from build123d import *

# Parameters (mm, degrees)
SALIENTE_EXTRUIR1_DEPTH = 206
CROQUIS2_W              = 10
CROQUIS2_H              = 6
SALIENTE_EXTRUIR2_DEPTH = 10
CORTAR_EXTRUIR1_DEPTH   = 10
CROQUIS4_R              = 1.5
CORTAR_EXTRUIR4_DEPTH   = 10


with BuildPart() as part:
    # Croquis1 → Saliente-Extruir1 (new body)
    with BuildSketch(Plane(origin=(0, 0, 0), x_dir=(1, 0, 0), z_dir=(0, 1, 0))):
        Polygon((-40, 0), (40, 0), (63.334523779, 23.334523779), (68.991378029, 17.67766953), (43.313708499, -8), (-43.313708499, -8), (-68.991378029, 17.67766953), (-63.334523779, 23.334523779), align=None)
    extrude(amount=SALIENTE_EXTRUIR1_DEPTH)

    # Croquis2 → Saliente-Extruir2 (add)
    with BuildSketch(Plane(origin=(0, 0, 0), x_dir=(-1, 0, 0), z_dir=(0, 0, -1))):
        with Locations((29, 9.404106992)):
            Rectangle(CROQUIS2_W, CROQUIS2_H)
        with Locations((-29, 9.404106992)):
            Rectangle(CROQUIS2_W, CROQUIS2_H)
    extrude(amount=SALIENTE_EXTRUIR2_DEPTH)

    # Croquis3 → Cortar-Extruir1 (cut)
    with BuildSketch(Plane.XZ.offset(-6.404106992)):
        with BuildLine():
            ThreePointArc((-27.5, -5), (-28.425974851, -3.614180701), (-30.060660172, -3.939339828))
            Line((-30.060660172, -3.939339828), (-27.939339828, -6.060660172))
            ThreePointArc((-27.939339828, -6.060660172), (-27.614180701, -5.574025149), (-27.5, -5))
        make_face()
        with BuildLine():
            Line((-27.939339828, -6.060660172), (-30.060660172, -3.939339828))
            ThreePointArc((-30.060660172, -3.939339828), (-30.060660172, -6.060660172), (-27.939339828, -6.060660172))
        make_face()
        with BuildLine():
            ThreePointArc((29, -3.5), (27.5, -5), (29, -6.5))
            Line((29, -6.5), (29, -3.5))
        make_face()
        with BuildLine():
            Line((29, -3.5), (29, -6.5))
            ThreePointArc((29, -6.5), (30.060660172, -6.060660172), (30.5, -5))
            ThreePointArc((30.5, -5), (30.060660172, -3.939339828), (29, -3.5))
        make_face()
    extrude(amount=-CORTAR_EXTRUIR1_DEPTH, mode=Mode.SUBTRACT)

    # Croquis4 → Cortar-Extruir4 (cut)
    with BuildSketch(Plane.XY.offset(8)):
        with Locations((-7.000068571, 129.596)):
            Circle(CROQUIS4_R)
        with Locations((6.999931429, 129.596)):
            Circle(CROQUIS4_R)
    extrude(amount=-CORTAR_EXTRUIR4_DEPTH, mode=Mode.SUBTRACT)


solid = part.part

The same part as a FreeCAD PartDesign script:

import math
import FreeCAD as App
import Part
import Sketcher

V = App.Vector
Q = App.Units.Quantity


def add_polygon(sketch, points):
    """Adds a closed chain of lines whose ends are joined by coincident constraints."""
    first, n = sketch.GeometryCount, len(points)
    for a, b in zip(points, points[1:] + points[:1]):
        sketch.addGeometry(Part.LineSegment(App.Vector(*a, 0), App.Vector(*b, 0)), False)
    for i in range(n):
        sketch.addConstraint(Sketcher.Constraint("Coincident", first + i, 2, first + (i + 1) % n, 1))

doc = App.newDocument("Part")
body = doc.addObject("PartDesign::Body", "Body")

sketch1 = body.newObject("Sketcher::SketchObject", "Sketch")
sketch1.AttachmentSupport = (doc.getObject("XZ_Plane"), [""])
sketch1.MapMode = "FlatFace"
add_polygon(sketch1, [(40, 0), (-40, 0), (-63, -23), (-69, -18), (-43, 8), (43, 8), (69, -18), (63, -23)])
sketch1.addConstraint(Sketcher.Constraint("Horizontal", 0))
sketch1.addConstraint(Sketcher.Constraint("Horizontal", 4))
sketch1.addConstraint(Sketcher.Constraint("Symmetric", 0, 2, 7, 2, -1, 1))
sketch1.addConstraint(Sketcher.Constraint("Symmetric", 2, 2, 5, 2, -2))
sketch1.addConstraint(Sketcher.Constraint("Symmetric", 1, 2, 6, 2, -2))
sketch1.addConstraint(Sketcher.Constraint("Perpendicular", 1, 2))
sketch1.addConstraint(Sketcher.Constraint("Perpendicular", 2, 3))
sketch1.addConstraint(Sketcher.Constraint("Perpendicular", 3, 5))
sketch1.addConstraint(Sketcher.Constraint("Perpendicular", 5, 6))
sketch1.addConstraint(Sketcher.Constraint("DistanceX", 0, 2, 0, 1, Q("80 mm")))
sketch1.addConstraint(Sketcher.Constraint("Distance", 1, Q("33 mm")))
sketch1.addConstraint(Sketcher.Constraint("Distance", 2, Q("8 mm")))
sketch1.addConstraint(Sketcher.Constraint("DistanceY", -1, 1, 3, 2, Q("8 mm")))
pad1 = body.newObject("PartDesign::Pad", "Pad")
pad1.Profile = sketch1
pad1.Length = 206
pad1.Reversed = True

sketch2 = body.newObject("Sketcher::SketchObject", "Sketch001")
sketch2.AttachmentSupport = (doc.getObject("XY_Plane"), [""])
sketch2.MapMode = "FlatFace"
add_polygon(sketch2, [(-24, 12), (-24, 6), (-34, 6), (-34, 12)])
add_polygon(sketch2, [(34, 12), (34, 6), (24, 6), (24, 12)])
sketch2.addConstraint(Sketcher.Constraint("Vertical", 0))
sketch2.addConstraint(Sketcher.Constraint("Horizontal", 1))
sketch2.addConstraint(Sketcher.Constraint("Vertical", 2))
sketch2.addConstraint(Sketcher.Constraint("Horizontal", 3))
sketch2.addConstraint(Sketcher.Constraint("Vertical", 4))
sketch2.addConstraint(Sketcher.Constraint("Horizontal", 5))
sketch2.addConstraint(Sketcher.Constraint("Vertical", 6))
sketch2.addConstraint(Sketcher.Constraint("Horizontal", 7))
sketch2.addConstraint(Sketcher.Constraint("Symmetric", 1, 2, 4, 2, -2))
sketch2.addConstraint(Sketcher.Constraint("Symmetric", 3, 2, 6, 2, -2))
sketch2.addConstraint(Sketcher.Constraint("DistanceX", 1, 2, 1, 1, Q("10 mm")))
sketch2.addConstraint(Sketcher.Constraint("DistanceY", 0, 2, 0, 1, Q("6 mm")))
sketch2.addConstraint(Sketcher.Constraint("DistanceX", 0, 2, -1, 1, Q("24 mm")))
sketch2.addConstraint(Sketcher.Constraint("DistanceY", -1, 1, 0, 2, Q("6.404107 mm")))
pad2 = body.newObject("PartDesign::Pad", "Pad001")
pad2.Profile = sketch2
pad2.Length = 10
pad2.Reversed = True

sketch3 = body.newObject("Sketcher::SketchObject", "Sketch002")
sketch3.AttachmentSupport = (doc.getObject("XZ_Plane"), [""])
sketch3.MapMode = "FlatFace"
sketch3.AttachmentOffset = App.Placement(V(0, 0, -6.404107), App.Rotation())
sketch3.addGeometry(Part.ArcOfCircle(Part.Circle(V(-29, -5, 0), V(0, 0, 1), 1.5), math.radians(0), math.radians(135)), False)
sketch3.addGeometry(Part.ArcOfCircle(Part.Circle(V(-29, -5, 0), V(0, 0, 1), 1.5), math.radians(135), math.radians(315)), False)
sketch3.addGeometry(Part.ArcOfCircle(Part.Circle(V(-29, -5, 0), V(0, 0, 1), 1.5), math.radians(-45), math.radians(0)), False)
sketch3.addGeometry(Part.ArcOfCircle(Part.Circle(V(29, -5, 0), V(0, 0, 1), 1.5), math.radians(90), math.radians(270)), False)
sketch3.addGeometry(Part.ArcOfCircle(Part.Circle(V(29, -5, 0), V(0, 0, 1), 1.5), math.radians(-90), math.radians(0)), False)
sketch3.addGeometry(Part.ArcOfCircle(Part.Circle(V(29, -5, 0), V(0, 0, 1), 1.5), math.radians(0), math.radians(90)), False)
sketch3.addConstraint(Sketcher.Constraint("Tangent", 0, 2, 1, 1))
sketch3.addConstraint(Sketcher.Constraint("Tangent", 1, 2, 2, 1))
sketch3.addConstraint(Sketcher.Constraint("Tangent", 2, 2, 0, 1))
sketch3.addConstraint(Sketcher.Constraint("Tangent", 3, 2, 4, 1))
sketch3.addConstraint(Sketcher.Constraint("Tangent", 4, 2, 5, 1))
sketch3.addConstraint(Sketcher.Constraint("Tangent", 5, 2, 3, 1))
sketch3.addConstraint(Sketcher.Constraint("Equal", 2, 3))
sketch3.addConstraint(Sketcher.Constraint("Symmetric", 0, 3, 3, 3, -2))
sketch3.addConstraint(Sketcher.Constraint("Horizontal", 5, 3, 2, 2))
sketch3.addConstraint(Sketcher.Constraint("Horizontal", 2, 2, 4, 2))
sketch3.addConstraint(Sketcher.Constraint("Vertical", 5, 3, 3, 2))
sketch3.addConstraint(Sketcher.Constraint("Vertical", 3, 2, 5, 2))
sketch3.addConstraint(Sketcher.Constraint("Radius", 0, Q("1.5 mm")))
sketch3.addConstraint(Sketcher.Constraint("DistanceX", 0, 3, -1, 1, Q("29 mm")))
sketch3.addConstraint(Sketcher.Constraint("DistanceY", 0, 3, -1, 1, Q("5 mm")))
sketch3.addConstraint(Sketcher.Constraint("DistanceX", 0, 2, -1, 1, Q("30.06066 mm")))
sketch3.addConstraint(Sketcher.Constraint("DistanceX", 1, 2, -1, 1, Q("27.93934 mm")))
pocket1 = body.newObject("PartDesign::Pocket", "Pocket")
pocket1.Profile = sketch3
pocket1.Length = 10

sketch4 = body.newObject("Sketcher::SketchObject", "Sketch003")
sketch4.AttachmentSupport = (doc.getObject("XY_Plane"), [""])
sketch4.MapMode = "FlatFace"
sketch4.AttachmentOffset = App.Placement(V(0, 0, 8), App.Rotation())
sketch4.addGeometry(Part.Circle(V(-7, 129.6, 0), V(0, 0, 1), 1.5), False)
sketch4.addGeometry(Part.Circle(V(7, 129.6, 0), V(0, 0, 1), 1.5), False)
sketch4.addConstraint(Sketcher.Constraint("Equal", 0, 1))
sketch4.addConstraint(Sketcher.Constraint("Horizontal", 0, 3, 1, 3))
sketch4.addConstraint(Sketcher.Constraint("Diameter", 0, Q("3 mm")))
sketch4.addConstraint(Sketcher.Constraint("DistanceX", 0, 3, 1, 3, Q("14 mm")))
sketch4.addConstraint(Sketcher.Constraint("DistanceY", -1, 1, 0, 3, Q("129.596 mm")))
sketch4.addConstraint(Sketcher.Constraint("DistanceX", 0, 3, -1, 1, Q("7.000069 mm")))
pocket2 = body.newObject("PartDesign::Pocket", "Pocket001")
pocket2.Profile = sketch4
pocket2.Length = 10

doc.recompute()
